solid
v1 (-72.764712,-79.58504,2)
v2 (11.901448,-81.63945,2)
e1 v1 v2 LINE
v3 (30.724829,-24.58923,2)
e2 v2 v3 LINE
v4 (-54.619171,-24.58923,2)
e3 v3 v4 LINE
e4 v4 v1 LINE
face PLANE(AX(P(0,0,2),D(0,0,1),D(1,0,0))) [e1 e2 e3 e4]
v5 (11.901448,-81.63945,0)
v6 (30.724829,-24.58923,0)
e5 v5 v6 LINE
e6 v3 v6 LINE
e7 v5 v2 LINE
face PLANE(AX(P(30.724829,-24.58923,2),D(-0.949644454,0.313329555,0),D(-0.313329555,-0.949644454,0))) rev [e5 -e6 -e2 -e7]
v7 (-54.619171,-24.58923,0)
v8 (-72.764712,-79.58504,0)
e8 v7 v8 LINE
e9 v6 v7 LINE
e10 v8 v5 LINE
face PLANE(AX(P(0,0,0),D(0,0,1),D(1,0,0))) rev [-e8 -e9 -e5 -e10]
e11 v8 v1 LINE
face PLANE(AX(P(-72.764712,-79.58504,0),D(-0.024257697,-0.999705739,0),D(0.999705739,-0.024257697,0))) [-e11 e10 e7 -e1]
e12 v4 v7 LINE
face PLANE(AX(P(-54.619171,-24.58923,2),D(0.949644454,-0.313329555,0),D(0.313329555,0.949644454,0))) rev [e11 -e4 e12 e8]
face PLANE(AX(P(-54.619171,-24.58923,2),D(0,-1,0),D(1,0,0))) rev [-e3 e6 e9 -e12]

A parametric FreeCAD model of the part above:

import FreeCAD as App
import Part
import Sketcher
Q = App.Units.Quantity


def add_polygon(sketch, points):
    """Adds a closed chain of lines whose ends are joined by coincident constraints."""
    first, n = sketch.GeometryCount, len(points)
    for a, b in zip(points, points[1:] + points[:1]):
        sketch.addGeometry(Part.LineSegment(App.Vector(*a, 0), App.Vector(*b, 0)), False)
    for i in range(n):
        sketch.addConstraint(Sketcher.Constraint("Coincident", first + i, 2, first + (i + 1) % n, 1))

doc = App.newDocument("Part")
params = doc.addObject("Spreadsheet::Sheet", "Params")
for row, (alias, value) in enumerate([
    ("sketch1_width", "3.36 in"),
    ("sketch1_length", "2.12 in"),
    ("pad1_length", "2 mm"),
    ("sketch2_width", "3.36 in"),
    ("sketch2_length", "0.16 in"),
    ("pad2_length", "2 mm"),
], start=1):
    params.set(f"A{row}", alias)
    params.set(f"B{row}", "=" + value)
    params.setAlias(f"B{row}", alias)

body = doc.addObject("PartDesign::Body", "Body")

# Sketch on XY plane
sketch1 = body.newObject("Sketcher::SketchObject", "Sketch")
sketch1.AttachmentSupport = (doc.getObject("XY_Plane"), [""])
sketch1.MapMode = "FlatFace"
add_polygon(sketch1, [(31, -25), (-55, -25), (-71, -76), (14, -76)])  # lines 0-3
sketch1.addConstraint(Sketcher.Constraint("Horizontal", 0))
sketch1.addConstraint(Sketcher.Constraint("Horizontal", 2))
sketch1.addConstraint(Sketcher.Constraint("Parallel", 1, 3))
sketch1.addConstraint(Sketcher.Constraint("DistanceX", 0, 2, 0, 1, Q("3.36 in")))
sketch1.addConstraint(Sketcher.Constraint("Distance", 1, Q("2.12 in")))
sketch1.addConstraint(Sketcher.Constraint("Angle", 1, Q("-108.26 deg")))
sketch1.addConstraint(Sketcher.Constraint("DistanceX", 0, 2, -1, 1, 54.619171))
sketch1.addConstraint(Sketcher.Constraint("DistanceY", 0, 2, -1, 1, 24.58923))
sketch1.setExpression("Constraints[7]", "Params.sketch1_width")
sketch1.setExpression("Constraints[8]", "Params.sketch1_length")
pad1 = body.newObject("PartDesign::Pad", "Pad")
pad1.Profile = sketch1
pad1.setExpression("Length", "Params.pad1_length")

# Sketch on XY plane
sketch2 = body.newObject("Sketcher::SketchObject", "Sketch001")
sketch2.AttachmentSupport = (doc.getObject("XY_Plane"), [""])
sketch2.MapMode = "FlatFace"
sketch2.AttachmentOffset = App.Placement(App.Vector(0, 0, 2), App.Rotation())
add_polygon(sketch2, [(-72.8, -79.6), (11.9, -81.6), (13.9, -75.7), (-71.5, -75.7)])  # lines 0-3
sketch2.addConstraint(Sketcher.Constraint("Horizontal", 2))
sketch2.addConstraint(Sketcher.Constraint("Parallel", 1, 3))
sketch2.addConstraint(Sketcher.Constraint("DistanceX", 2, 2, 2, 1, Q("3.36 in")))
sketch2.addConstraint(Sketcher.Constraint("Distance", 3, Q("0.16 in")))
sketch2.addConstraint(Sketcher.Constraint("Angle", 0, Q("-1.39 deg")))
sketch2.addConstraint(Sketcher.Constraint("Angle", 1, Q("71.74 deg")))
sketch2.addConstraint(Sketcher.Constraint("DistanceY", 0, 2, -1, 1, 81.63945))
sketch2.addConstraint(Sketcher.Constraint("DistanceX", -1, 1, 1, 2, 13.852659))
sketch2.setExpression("Constraints[6]", "Params.sketch2_width")
sketch2.setExpression("Constraints[7]", "Params.sketch2_length")
pad2 = body.newObject("PartDesign::Pad", "Pad001")
pad2.Profile = sketch2
pad2.setExpression("Length", "Params.pad2_length")
pad2.Reversed = True

doc.recompute()
